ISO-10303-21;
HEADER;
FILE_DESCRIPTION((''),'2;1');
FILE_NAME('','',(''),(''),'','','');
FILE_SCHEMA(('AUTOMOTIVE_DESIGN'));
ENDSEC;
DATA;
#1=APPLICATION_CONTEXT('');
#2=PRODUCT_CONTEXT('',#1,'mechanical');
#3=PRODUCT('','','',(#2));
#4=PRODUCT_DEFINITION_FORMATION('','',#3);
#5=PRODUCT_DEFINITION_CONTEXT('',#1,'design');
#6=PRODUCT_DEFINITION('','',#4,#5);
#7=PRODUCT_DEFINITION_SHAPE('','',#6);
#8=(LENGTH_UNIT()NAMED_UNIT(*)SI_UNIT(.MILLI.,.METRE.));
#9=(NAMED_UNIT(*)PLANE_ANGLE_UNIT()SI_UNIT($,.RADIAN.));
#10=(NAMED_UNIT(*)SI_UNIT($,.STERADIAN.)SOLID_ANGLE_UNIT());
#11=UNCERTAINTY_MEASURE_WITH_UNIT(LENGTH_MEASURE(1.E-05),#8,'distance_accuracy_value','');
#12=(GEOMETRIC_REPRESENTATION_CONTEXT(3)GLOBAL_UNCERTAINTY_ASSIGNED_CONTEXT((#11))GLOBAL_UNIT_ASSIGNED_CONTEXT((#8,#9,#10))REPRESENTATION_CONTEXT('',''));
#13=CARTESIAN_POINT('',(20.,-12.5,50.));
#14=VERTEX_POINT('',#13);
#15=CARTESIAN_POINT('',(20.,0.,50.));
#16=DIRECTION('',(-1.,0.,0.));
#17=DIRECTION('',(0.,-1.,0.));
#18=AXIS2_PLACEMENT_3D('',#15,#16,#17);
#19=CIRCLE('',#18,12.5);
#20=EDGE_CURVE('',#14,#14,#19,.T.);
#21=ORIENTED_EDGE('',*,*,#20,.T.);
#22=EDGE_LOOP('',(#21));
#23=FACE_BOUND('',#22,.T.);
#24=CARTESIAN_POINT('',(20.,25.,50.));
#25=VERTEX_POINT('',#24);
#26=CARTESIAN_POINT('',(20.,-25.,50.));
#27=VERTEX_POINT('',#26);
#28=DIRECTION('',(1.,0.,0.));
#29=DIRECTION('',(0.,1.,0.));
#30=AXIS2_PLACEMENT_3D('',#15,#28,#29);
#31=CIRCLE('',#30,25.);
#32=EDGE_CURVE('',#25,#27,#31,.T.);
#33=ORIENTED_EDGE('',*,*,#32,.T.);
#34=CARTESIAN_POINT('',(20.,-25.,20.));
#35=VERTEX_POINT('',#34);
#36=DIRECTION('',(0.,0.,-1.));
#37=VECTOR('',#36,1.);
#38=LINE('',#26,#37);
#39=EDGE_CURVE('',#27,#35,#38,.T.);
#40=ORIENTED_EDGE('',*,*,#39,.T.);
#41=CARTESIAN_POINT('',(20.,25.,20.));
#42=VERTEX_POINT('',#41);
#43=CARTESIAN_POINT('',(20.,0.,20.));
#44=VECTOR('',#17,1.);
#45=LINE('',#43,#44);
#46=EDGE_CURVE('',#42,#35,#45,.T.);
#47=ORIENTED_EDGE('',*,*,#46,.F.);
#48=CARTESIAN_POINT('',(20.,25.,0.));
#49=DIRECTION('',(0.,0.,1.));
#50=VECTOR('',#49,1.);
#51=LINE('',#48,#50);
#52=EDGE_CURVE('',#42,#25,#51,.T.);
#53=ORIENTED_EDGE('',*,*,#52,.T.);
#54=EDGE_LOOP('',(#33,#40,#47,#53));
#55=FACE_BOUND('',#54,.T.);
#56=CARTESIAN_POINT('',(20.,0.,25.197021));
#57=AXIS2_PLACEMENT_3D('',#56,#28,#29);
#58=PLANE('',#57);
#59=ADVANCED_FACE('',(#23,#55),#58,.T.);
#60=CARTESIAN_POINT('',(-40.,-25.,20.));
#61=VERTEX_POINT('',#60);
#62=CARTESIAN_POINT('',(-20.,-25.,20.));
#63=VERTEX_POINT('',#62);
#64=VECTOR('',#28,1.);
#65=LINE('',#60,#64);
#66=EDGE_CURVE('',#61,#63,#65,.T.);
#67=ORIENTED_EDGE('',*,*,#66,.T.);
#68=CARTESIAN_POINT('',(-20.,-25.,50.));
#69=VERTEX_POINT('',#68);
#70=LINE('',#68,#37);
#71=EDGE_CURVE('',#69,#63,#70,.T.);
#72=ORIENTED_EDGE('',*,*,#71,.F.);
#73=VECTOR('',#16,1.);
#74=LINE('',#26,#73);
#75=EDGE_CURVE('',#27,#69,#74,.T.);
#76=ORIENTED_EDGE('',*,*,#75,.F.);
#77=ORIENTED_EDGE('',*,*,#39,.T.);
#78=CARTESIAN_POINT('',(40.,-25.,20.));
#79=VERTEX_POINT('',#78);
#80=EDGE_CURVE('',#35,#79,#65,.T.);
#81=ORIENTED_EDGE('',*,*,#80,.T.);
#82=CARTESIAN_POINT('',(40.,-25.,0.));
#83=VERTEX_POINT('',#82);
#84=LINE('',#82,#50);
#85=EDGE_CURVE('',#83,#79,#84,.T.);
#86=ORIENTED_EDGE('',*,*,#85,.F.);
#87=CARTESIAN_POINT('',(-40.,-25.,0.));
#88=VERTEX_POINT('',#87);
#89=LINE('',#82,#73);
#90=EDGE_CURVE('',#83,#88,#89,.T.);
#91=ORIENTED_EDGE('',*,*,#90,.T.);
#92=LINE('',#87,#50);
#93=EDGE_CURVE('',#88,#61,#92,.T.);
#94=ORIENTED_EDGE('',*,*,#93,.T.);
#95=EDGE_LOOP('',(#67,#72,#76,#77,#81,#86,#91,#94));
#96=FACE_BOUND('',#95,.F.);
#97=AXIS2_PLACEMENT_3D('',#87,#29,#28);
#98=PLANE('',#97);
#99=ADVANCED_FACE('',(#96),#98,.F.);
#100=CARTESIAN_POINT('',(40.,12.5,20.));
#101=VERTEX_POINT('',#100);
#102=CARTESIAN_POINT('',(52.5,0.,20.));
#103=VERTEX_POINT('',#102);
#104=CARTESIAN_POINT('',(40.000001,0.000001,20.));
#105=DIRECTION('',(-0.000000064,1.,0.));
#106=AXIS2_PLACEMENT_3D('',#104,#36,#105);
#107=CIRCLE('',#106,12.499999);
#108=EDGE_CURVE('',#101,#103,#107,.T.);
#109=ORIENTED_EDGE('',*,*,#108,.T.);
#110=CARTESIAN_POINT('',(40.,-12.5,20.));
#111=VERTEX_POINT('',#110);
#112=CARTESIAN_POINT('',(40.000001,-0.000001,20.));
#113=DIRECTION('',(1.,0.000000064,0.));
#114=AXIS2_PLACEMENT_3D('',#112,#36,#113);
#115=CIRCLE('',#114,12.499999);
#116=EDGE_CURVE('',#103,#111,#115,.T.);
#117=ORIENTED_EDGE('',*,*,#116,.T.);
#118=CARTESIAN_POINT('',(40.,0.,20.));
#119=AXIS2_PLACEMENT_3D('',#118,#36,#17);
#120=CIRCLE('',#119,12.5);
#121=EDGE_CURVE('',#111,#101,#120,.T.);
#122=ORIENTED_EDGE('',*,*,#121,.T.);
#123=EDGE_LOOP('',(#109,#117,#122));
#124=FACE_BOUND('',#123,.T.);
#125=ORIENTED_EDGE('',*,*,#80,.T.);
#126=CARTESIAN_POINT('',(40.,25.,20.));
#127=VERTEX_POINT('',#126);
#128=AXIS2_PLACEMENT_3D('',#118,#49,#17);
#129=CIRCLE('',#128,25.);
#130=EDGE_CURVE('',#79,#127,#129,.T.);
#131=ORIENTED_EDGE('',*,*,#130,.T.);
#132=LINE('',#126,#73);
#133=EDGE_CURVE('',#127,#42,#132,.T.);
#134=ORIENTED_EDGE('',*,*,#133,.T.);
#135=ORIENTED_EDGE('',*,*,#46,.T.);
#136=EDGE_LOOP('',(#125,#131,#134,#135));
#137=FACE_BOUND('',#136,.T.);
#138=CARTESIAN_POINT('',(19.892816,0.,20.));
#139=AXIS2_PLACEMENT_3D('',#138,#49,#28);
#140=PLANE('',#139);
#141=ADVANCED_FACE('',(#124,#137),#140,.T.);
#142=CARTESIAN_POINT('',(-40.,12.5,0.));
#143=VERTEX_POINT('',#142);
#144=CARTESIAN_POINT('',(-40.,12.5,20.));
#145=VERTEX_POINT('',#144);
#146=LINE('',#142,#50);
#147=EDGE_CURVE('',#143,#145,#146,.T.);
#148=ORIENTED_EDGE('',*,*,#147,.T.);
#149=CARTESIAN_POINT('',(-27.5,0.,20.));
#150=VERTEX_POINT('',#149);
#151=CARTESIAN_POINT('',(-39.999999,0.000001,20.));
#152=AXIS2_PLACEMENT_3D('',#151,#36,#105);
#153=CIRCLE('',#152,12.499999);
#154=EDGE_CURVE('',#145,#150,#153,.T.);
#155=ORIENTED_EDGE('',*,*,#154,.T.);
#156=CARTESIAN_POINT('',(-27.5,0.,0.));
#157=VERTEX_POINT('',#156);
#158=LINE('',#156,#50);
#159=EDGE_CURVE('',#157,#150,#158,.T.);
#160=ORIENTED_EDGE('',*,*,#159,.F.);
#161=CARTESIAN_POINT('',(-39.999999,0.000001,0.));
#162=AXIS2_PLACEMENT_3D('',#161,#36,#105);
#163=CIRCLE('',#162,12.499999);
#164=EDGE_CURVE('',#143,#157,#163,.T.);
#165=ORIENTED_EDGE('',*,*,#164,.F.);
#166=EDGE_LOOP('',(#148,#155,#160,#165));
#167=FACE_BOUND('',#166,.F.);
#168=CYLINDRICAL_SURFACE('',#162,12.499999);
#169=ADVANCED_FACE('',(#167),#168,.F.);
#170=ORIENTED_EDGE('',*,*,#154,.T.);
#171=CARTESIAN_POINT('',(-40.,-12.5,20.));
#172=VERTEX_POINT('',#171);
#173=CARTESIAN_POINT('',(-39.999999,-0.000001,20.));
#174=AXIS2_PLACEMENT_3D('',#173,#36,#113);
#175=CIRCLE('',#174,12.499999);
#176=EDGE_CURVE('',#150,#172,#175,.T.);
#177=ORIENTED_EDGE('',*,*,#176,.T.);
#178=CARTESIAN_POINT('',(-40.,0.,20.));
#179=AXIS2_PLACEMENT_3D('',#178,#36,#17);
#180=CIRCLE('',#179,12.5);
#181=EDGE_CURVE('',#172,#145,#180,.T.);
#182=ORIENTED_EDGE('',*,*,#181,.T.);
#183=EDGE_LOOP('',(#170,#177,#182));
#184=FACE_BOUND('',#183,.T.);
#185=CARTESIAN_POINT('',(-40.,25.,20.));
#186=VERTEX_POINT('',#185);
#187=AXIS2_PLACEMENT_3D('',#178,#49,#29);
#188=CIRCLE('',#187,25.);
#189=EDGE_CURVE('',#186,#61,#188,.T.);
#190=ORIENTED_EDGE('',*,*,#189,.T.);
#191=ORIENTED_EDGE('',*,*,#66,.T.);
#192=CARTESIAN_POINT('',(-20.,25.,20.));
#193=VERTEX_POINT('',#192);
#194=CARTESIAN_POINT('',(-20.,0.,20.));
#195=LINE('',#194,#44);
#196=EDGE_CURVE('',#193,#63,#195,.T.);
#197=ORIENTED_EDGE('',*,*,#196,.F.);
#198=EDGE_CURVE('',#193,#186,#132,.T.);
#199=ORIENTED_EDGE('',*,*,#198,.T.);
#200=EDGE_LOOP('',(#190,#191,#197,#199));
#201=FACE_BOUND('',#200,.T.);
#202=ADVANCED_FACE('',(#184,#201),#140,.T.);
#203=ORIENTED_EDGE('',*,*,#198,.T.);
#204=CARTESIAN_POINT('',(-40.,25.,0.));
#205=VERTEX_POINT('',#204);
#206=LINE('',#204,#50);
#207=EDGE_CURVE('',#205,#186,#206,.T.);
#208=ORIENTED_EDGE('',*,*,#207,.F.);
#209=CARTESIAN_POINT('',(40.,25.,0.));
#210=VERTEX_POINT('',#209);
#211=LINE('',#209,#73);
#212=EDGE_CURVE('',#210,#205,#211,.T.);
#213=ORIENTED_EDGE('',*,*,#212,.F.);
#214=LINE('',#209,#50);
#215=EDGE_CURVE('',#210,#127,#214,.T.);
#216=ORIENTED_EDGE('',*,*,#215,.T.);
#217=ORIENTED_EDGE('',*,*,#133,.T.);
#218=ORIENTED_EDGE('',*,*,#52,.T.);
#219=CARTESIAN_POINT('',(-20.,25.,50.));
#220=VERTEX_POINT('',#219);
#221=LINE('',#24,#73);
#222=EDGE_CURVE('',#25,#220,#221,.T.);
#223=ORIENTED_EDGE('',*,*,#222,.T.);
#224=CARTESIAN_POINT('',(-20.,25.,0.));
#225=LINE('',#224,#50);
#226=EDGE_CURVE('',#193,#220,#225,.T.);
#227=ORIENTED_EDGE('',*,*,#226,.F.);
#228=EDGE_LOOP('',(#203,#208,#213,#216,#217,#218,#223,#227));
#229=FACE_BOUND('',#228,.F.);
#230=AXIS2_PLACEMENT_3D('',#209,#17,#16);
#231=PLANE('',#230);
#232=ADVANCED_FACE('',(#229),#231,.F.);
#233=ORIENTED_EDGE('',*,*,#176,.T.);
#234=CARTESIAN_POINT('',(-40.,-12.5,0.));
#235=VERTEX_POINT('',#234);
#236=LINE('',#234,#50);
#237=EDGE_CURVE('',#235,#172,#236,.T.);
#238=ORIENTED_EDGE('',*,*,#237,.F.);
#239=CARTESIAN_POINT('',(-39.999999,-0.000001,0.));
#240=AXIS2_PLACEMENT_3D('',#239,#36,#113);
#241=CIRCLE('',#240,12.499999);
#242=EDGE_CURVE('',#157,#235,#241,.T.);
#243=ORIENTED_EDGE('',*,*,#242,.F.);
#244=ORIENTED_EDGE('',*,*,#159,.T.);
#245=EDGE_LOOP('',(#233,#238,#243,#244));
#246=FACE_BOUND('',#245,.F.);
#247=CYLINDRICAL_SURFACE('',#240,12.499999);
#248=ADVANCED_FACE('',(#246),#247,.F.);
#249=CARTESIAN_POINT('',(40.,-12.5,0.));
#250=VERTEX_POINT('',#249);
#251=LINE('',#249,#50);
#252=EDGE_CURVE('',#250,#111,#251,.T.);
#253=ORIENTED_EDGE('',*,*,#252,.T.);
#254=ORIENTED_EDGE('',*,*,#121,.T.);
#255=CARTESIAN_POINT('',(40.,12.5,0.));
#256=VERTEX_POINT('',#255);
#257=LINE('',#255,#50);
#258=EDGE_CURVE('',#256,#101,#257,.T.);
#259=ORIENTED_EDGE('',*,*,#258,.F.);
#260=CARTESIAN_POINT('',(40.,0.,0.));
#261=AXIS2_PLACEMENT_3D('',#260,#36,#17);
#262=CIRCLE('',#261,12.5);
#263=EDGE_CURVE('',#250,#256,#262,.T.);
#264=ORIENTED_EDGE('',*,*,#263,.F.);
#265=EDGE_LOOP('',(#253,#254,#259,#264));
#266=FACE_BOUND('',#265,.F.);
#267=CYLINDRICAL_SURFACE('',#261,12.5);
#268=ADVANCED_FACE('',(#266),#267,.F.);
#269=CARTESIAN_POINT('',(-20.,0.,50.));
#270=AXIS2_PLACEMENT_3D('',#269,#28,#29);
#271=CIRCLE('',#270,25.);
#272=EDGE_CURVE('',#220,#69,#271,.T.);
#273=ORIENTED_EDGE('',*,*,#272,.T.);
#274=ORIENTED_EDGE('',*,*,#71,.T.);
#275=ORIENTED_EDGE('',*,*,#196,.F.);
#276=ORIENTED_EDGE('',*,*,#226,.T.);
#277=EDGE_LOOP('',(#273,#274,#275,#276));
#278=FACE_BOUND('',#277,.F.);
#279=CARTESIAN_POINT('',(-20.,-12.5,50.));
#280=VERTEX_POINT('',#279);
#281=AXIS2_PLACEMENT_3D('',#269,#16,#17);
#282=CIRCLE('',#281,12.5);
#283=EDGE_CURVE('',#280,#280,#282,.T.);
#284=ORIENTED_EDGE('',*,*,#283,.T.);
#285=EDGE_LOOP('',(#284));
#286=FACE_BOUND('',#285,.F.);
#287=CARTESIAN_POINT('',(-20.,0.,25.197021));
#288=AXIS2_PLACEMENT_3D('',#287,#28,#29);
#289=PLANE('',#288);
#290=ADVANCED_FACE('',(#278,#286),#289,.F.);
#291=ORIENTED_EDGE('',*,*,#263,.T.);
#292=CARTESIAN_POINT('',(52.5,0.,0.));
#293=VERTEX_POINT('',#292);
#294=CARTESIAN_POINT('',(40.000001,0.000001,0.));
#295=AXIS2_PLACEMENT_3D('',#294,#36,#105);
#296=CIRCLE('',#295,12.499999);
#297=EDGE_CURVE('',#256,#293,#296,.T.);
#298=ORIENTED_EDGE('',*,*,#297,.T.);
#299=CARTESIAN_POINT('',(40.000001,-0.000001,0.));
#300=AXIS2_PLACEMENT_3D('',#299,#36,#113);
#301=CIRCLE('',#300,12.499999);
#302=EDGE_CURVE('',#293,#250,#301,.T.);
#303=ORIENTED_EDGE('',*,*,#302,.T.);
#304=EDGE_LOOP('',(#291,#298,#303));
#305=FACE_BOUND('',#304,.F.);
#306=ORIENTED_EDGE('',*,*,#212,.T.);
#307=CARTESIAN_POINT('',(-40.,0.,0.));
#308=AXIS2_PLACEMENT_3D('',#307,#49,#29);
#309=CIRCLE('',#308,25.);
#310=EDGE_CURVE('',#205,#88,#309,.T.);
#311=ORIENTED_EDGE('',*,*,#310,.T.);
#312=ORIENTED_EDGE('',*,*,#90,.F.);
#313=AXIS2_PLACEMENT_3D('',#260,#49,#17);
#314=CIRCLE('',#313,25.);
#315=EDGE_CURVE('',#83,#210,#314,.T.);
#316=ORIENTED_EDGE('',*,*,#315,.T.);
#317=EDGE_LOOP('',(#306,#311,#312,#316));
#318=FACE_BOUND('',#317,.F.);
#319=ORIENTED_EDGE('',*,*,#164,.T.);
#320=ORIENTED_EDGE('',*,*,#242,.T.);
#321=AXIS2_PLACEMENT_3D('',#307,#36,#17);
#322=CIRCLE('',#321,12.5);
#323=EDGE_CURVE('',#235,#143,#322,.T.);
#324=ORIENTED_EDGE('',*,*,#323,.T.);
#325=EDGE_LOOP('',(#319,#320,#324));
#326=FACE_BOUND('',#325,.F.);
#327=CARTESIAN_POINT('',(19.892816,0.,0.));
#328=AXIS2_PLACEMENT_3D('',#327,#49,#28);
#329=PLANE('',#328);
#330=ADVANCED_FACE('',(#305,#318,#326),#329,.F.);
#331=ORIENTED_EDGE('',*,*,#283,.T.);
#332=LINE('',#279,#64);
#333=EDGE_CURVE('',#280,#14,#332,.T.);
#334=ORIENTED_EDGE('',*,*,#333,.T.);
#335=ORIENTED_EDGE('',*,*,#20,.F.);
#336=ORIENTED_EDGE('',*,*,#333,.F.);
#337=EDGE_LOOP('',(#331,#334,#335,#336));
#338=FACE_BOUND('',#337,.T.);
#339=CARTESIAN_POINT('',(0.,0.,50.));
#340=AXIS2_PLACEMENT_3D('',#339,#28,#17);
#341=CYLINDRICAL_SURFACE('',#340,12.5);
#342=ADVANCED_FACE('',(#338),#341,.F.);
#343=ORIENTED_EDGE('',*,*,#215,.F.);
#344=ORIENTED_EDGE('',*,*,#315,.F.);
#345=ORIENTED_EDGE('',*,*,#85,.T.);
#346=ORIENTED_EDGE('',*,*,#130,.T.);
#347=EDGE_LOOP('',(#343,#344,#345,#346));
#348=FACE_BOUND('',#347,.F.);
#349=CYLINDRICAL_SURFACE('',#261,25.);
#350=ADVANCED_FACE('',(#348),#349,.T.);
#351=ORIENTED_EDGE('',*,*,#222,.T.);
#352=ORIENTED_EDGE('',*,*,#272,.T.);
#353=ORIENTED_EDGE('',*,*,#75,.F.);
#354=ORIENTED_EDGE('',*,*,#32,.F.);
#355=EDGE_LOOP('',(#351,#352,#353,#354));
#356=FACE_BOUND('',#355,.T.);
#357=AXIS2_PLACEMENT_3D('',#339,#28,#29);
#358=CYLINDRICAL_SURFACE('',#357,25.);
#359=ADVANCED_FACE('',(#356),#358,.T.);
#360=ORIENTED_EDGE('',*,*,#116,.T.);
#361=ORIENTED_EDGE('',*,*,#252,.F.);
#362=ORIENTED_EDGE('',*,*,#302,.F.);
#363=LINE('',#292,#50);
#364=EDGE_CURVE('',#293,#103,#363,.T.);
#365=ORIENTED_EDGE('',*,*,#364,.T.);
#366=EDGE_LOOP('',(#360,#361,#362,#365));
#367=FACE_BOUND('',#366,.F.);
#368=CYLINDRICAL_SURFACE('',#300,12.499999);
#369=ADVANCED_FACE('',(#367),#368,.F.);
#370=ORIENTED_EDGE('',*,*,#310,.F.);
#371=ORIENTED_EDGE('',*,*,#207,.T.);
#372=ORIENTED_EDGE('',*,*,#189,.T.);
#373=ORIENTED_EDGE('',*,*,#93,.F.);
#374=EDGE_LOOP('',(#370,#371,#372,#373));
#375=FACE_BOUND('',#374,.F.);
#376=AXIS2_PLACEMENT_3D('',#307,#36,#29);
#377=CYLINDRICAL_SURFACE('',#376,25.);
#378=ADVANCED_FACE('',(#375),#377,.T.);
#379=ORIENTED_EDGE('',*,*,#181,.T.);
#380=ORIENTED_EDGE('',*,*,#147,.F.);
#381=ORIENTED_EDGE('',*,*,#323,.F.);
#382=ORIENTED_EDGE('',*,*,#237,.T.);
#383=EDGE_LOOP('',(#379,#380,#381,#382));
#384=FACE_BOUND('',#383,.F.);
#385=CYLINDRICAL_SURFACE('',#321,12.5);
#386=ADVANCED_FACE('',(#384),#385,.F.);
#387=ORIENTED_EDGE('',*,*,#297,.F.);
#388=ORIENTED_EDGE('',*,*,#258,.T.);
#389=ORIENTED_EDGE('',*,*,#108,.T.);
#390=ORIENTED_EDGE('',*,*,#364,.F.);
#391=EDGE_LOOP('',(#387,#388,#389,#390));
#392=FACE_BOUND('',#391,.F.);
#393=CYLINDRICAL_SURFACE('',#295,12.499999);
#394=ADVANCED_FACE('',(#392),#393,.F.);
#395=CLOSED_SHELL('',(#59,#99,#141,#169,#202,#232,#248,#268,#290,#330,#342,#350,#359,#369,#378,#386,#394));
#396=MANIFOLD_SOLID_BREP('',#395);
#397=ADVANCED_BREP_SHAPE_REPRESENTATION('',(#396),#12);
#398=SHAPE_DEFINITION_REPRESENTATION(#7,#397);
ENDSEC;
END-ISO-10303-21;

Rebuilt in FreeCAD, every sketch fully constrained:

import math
import FreeCAD as App
import Part
import Sketcher

doc = App.newDocument("Part")
params = doc.addObject("Spreadsheet::Sheet", "Params")
for row, (alias, value) in enumerate([
    ("sketch1_diameter", "25 mm"),
    ("sketch1_radius", "25 mm"),
    ("pad1_length", "40 mm"),
    ("sketch2_radius", "25 mm"),
    ("sketch2_radius2", "12.5 mm"),
    ("sketch2_width", "80 mm"),
    ("pad2_length", "20 mm"),
], start=1):
    params.set(f"A{row}", alias)
    params.set(f"B{row}", "=" + value)
    params.setAlias(f"B{row}", alias)

body = doc.addObject("PartDesign::Body", "Body")

# Sketch on YZ plane
sketch1 = body.newObject("Sketcher::SketchObject", "Sketch")
sketch1.AttachmentSupport = (doc.getObject("YZ_Plane"), [""])
sketch1.MapMode = "FlatFace"
sketch1.addGeometry([
    Part.LineSegment(App.Vector(-25, 50, 0), App.Vector(-25, 0, 0)),  # 0
    Part.LineSegment(App.Vector(-25, 0, 0), App.Vector(25, 0, 0)),  # 1
    Part.LineSegment(App.Vector(25, 0, 0), App.Vector(25, 50, 0)),  # 2
    Part.ArcOfCircle(Part.Circle(App.Vector(0, 50, 0), App.Vector(0, 0, 1), 25), math.radians(0), math.radians(180)),  # 3
    Part.Circle(App.Vector(0, 50, 0), App.Vector(0, 0, 1), 12),  # 4
], False)
sketch1.addConstraint([
    Sketcher.Constraint("Coincident", 0, 2, 1, 1),
    Sketcher.Constraint("Coincident", 1, 2, 2, 1),
    Sketcher.Constraint("Tangent", 2, 2, 3, 1),
    Sketcher.Constraint("Tangent", 3, 2, 0, 1),
    Sketcher.Constraint("Vertical", 0),
    Sketcher.Constraint("Horizontal", 1),
    Sketcher.Constraint("Vertical", 2),
    Sketcher.Constraint("Coincident", 4, 3, 3, 3),
    Sketcher.Constraint("Symmetric", 0, 2, 1, 2, -1, 1),
    Sketcher.Constraint("Equal", 1, 0),
    Sketcher.Constraint("Diameter", 4, 25.0),
    Sketcher.Constraint("Radius", 3, 25.0),
])
sketch1.setExpression("Constraints[10]", "Params.sketch1_diameter")
sketch1.setExpression("Constraints[11]", "Params.sketch1_radius")
pad1 = body.newObject("PartDesign::Pad", "Pad")
pad1.Profile = sketch1
pad1.setExpression("Length", "Params.pad1_length")
pad1.Midplane = True

# Sketch on XY plane
sketch2 = body.newObject("Sketcher::SketchObject", "Sketch001")
sketch2.AttachmentSupport = (doc.getObject("XY_Plane"), [""])
sketch2.MapMode = "FlatFace"
sketch2.addGeometry([
    Part.LineSegment(App.Vector(40, 25, 0), App.Vector(-40, 25, 0)),  # 0
    Part.ArcOfCircle(Part.Circle(App.Vector(-40, 0, 0), App.Vector(0, 0, 1), 25), math.radians(90), math.radians(270)),  # 1
    Part.LineSegment(App.Vector(-40, -25, 0), App.Vector(40, -25, 0)),  # 2
    Part.ArcOfCircle(Part.Circle(App.Vector(40, 0, 0), App.Vector(0, 0, 1), 25), math.radians(-90), math.radians(90)),  # 3
    Part.ArcOfCircle(Part.Circle(App.Vector(40, 0, 0), App.Vector(0, 0, 1), 12), math.radians(90), math.radians(270)),  # 4
    Part.ArcOfCircle(Part.Circle(App.Vector(40, 0, 0), App.Vector(0, 0, 1), 12), math.radians(0), math.radians(90)),  # 5
    Part.ArcOfCircle(Part.Circle(App.Vector(40, 0, 0), App.Vector(0, 0, 1), 12), math.radians(-90), math.radians(0)),  # 6
    Part.ArcOfCircle(Part.Circle(App.Vector(-40, 0, 0), App.Vector(0, 0, 1), 12), math.radians(0), math.radians(90)),  # 7
    Part.ArcOfCircle(Part.Circle(App.Vector(-40, 0, 0), App.Vector(0, 0, 1), 12), math.radians(-90), math.radians(0)),  # 8
    Part.ArcOfCircle(Part.Circle(App.Vector(-40, 0, 0), App.Vector(0, 0, 1), 12), math.radians(90), math.radians(270)),  # 9
], False)
sketch2.addConstraint([
    Sketcher.Constraint("Tangent", 0, 2, 1, 1),
    Sketcher.Constraint("Tangent", 1, 2, 2, 1),
    Sketcher.Constraint("Tangent", 2, 2, 3, 1),
    Sketcher.Constraint("Tangent", 3, 2, 0, 1),
    Sketcher.Constraint("Tangent", 4, 1, 5, 2),
    Sketcher.Constraint("Tangent", 5, 1, 6, 2),
    Sketcher.Constraint("Tangent", 6, 1, 4, 2),
    Sketcher.Constraint("Tangent", 7, 1, 8, 2),
    Sketcher.Constraint("Tangent", 8, 1, 9, 2),
    Sketcher.Constraint("Tangent", 9, 1, 7, 2),
    Sketcher.Constraint("Horizontal", 0),
    Sketcher.Constraint("Horizontal", 2),
    Sketcher.Constraint("Coincident", 4, 3, 3, 3),
    Sketcher.Constraint("Coincident", 7, 3, 1, 3),
    Sketcher.Constraint("Equal", 6, 7),
    Sketcher.Constraint("Symmetric", 1, 3, 3, 3, -1, 1),
    Sketcher.Constraint("PointOnObject", 5, 1, -1),
    Sketcher.Constraint("PointOnObject", 7, 1, -1),
    Sketcher.Constraint("Vertical", 3, 2, 4, 1),
    Sketcher.Constraint("Vertical", 4, 1, 6, 1),
    Sketcher.Constraint("Vertical", 1, 2, 8, 1),
    Sketcher.Constraint("Vertical", 8, 1, 9, 1),
    Sketcher.Constraint("Radius", 1, 25.0),
    Sketcher.Constraint("Radius", 4, 12.5),
    Sketcher.Constraint("DistanceX", 0, 2, 0, 1, 80.0),
])
sketch2.setExpression("Constraints[22]", "Params.sketch2_radius")
sketch2.setExpression("Constraints[23]", "Params.sketch2_radius2")
sketch2.setExpression("Constraints[24]", "Params.sketch2_width")
pad2 = body.newObject("PartDesign::Pad", "Pad001")
pad2.Profile = sketch2
pad2.setExpression("Length", "Params.pad2_length")

doc.recompute()
